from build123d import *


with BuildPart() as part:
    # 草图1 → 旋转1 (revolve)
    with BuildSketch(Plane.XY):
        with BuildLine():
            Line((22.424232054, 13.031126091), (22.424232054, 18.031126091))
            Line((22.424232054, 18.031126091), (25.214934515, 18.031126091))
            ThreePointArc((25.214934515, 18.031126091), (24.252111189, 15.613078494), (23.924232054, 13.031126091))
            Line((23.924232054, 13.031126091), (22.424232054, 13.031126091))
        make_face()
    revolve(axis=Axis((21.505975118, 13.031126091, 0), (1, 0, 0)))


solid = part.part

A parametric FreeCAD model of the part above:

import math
import FreeCAD as App
import Part
import Sketcher
from FreeCAD import Vector

doc = App.newDocument("Part")
body = doc.addObject("PartDesign::Body", "Body")

# Sketch on XY plane
sketch1 = body.newObject("Sketcher::SketchObject", "Sketch")
sketch1.AttachmentSupport = (doc.getObject("XY_Plane"), [""])
sketch1.MapMode = "FlatFace"
sketch1.addGeometry(Part.LineSegment(Vector(22.4, 18, 0), Vector(22.4, 13, 0)), False)
sketch1.addGeometry(Part.LineSegment(Vector(22.4, 13, 0), Vector(23.9, 13, 0)), False)
sketch1.addGeometry(Part.ArcOfCircle(Part.Circle(Vector(34.3, 13, 0), Vector(0, 0, 1), 10.3), math.radians(151), math.radians(180)), False)
sketch1.addGeometry(Part.LineSegment(Vector(25.2, 18, 0), Vector(22.4, 18, 0)), False)
sketch1.addGeometry(Part.LineSegment(Vector(22.4, 13, 0), Vector(34.3, 13, 0)), True)  # axis
sketch1.addConstraint(Sketcher.Constraint("Coincident", 0, 2, 1, 1))
sketch1.addConstraint(Sketcher.Constraint("Coincident", 1, 2, 2, 2))
sketch1.addConstraint(Sketcher.Constraint("Coincident", 2, 1, 3, 1))
sketch1.addConstraint(Sketcher.Constraint("Coincident", 3, 2, 0, 1))
sketch1.addConstraint(Sketcher.Constraint("Vertical", 0))
sketch1.addConstraint(Sketcher.Constraint("Horizontal", 1))
sketch1.addConstraint(Sketcher.Constraint("Horizontal", 3))
sketch1.addConstraint(Sketcher.Constraint("Horizontal", 4))
sketch1.addConstraint(Sketcher.Constraint("Coincident", 4, 1, 0, 2))
sketch1.addConstraint(Sketcher.Constraint("Coincident", 4, 2, 2, 3))
sketch1.addConstraint(Sketcher.Constraint("DistanceY", 0, 2, 0, 1, 5.0))
sketch1.addConstraint(Sketcher.Constraint("Radius", 2, 10.33))
sketch1.addConstraint(Sketcher.Constraint("DistanceX", 1, 1, 1, 2, 1.5))
sketch1.addConstraint(Sketcher.Constraint("DistanceX", -1, 1, 2, 3, 34.254232))
sketch1.addConstraint(Sketcher.Constraint("DistanceY", -1, 1, 2, 3, 13.031126))
revolution = body.newObject("PartDesign::Revolution", "Revolution")
revolution.Profile = sketch1
revolution.ReferenceAxis = (sketch1, ["Axis0"])
revolution.Angle = 360

doc.recompute()
